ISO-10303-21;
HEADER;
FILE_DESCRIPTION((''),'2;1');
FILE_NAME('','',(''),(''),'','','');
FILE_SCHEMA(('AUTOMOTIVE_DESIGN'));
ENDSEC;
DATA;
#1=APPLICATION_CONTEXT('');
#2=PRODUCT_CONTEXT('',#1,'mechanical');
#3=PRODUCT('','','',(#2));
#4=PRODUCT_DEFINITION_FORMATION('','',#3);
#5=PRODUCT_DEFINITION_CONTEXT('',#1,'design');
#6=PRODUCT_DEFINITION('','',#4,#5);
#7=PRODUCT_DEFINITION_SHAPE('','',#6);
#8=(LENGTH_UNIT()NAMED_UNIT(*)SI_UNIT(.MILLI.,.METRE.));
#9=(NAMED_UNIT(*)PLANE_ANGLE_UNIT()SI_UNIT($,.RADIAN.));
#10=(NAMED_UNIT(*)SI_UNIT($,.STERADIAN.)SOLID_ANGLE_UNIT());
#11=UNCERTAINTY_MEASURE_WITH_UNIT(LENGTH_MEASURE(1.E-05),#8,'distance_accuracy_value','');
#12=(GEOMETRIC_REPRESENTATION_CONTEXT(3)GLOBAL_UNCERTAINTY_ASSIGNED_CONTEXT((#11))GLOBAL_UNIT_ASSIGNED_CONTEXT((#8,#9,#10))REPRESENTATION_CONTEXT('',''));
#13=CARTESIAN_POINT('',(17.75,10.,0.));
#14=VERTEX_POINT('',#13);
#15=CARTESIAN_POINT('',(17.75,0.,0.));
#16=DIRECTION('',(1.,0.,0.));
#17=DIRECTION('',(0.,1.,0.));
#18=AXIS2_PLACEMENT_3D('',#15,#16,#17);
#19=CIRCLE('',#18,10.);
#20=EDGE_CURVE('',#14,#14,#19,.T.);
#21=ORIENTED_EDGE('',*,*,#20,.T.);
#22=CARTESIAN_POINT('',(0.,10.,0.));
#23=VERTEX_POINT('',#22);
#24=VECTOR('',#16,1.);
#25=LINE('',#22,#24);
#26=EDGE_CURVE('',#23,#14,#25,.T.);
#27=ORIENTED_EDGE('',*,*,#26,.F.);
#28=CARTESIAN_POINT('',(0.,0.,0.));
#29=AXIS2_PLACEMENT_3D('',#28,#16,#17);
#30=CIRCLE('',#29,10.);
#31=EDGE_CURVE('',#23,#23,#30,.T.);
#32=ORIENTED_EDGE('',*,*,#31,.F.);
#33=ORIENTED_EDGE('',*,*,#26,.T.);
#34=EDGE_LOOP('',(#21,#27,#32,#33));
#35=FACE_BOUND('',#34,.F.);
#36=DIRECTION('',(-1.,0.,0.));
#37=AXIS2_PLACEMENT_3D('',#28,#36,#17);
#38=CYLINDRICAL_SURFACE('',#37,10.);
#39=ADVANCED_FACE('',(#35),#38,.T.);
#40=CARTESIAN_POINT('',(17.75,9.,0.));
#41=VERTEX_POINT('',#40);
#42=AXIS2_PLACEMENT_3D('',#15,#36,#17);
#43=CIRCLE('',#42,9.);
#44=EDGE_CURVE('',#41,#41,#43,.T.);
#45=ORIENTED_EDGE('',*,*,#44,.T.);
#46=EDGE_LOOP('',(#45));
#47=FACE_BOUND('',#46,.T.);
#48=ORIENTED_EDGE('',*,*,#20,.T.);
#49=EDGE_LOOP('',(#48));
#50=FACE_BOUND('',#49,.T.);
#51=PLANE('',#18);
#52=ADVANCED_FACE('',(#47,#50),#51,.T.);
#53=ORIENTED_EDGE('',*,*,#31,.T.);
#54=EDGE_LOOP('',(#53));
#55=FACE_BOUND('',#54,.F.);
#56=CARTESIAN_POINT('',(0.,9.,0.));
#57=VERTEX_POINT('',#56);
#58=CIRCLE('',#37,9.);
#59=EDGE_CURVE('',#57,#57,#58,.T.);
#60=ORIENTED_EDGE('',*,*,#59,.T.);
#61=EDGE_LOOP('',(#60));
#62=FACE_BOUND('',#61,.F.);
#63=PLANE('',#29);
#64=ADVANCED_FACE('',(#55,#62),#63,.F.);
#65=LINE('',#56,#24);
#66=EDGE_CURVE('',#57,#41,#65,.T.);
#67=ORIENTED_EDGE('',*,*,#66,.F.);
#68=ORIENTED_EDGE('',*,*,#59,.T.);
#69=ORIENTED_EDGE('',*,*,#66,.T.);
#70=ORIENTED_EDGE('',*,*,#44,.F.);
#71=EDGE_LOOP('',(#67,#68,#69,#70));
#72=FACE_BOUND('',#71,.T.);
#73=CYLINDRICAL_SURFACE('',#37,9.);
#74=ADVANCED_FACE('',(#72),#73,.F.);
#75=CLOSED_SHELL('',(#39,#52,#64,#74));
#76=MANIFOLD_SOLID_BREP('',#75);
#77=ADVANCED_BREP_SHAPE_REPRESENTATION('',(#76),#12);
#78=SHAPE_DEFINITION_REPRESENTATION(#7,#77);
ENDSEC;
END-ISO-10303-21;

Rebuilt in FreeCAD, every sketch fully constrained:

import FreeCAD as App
import Part
import Sketcher
Q = App.Units.Quantity


def faces_at(feature, points):
    """Names of the faces that lie closest to the given points."""
    faces = feature.Shape.Faces
    near = lambda p: min(range(len(faces)), key=lambda i: faces[i].distToShape(Part.Vertex(*p))[0])
    return sorted({f"Face{near(p) + 1}" for p in points})

doc = App.newDocument("Part")
body = doc.addObject("PartDesign::Body", "Body")

sketch1 = body.newObject("Sketcher::SketchObject", "Sketch")
sketch1.AttachmentSupport = (doc.getObject("YZ_Plane"), [""])
sketch1.MapMode = "FlatFace"
sketch1.addGeometry(Part.Circle(App.Vector(0, 0, 0), App.Vector(0, 0, 1), 10), False)
sketch1.addConstraint([
    Sketcher.Constraint("Coincident", 0, 3, -1, 1),
    Sketcher.Constraint("Diameter", 0, Q("20 mm")),
])
pad1 = body.newObject("PartDesign::Pad", "Pad")
pad1.Profile = sketch1
pad1.Length = 17.75
doc.recompute()

thickness = body.newObject("PartDesign::Thickness", "Thickness")
thickness.Base = (pad1, faces_at(pad1, [(0, -1.182, 3.117), (17.75, -1.182, 3.117)]))
thickness.Value = 1
thickness.Reversed = True
thickness.Join = "Intersection"

doc.recompute()
